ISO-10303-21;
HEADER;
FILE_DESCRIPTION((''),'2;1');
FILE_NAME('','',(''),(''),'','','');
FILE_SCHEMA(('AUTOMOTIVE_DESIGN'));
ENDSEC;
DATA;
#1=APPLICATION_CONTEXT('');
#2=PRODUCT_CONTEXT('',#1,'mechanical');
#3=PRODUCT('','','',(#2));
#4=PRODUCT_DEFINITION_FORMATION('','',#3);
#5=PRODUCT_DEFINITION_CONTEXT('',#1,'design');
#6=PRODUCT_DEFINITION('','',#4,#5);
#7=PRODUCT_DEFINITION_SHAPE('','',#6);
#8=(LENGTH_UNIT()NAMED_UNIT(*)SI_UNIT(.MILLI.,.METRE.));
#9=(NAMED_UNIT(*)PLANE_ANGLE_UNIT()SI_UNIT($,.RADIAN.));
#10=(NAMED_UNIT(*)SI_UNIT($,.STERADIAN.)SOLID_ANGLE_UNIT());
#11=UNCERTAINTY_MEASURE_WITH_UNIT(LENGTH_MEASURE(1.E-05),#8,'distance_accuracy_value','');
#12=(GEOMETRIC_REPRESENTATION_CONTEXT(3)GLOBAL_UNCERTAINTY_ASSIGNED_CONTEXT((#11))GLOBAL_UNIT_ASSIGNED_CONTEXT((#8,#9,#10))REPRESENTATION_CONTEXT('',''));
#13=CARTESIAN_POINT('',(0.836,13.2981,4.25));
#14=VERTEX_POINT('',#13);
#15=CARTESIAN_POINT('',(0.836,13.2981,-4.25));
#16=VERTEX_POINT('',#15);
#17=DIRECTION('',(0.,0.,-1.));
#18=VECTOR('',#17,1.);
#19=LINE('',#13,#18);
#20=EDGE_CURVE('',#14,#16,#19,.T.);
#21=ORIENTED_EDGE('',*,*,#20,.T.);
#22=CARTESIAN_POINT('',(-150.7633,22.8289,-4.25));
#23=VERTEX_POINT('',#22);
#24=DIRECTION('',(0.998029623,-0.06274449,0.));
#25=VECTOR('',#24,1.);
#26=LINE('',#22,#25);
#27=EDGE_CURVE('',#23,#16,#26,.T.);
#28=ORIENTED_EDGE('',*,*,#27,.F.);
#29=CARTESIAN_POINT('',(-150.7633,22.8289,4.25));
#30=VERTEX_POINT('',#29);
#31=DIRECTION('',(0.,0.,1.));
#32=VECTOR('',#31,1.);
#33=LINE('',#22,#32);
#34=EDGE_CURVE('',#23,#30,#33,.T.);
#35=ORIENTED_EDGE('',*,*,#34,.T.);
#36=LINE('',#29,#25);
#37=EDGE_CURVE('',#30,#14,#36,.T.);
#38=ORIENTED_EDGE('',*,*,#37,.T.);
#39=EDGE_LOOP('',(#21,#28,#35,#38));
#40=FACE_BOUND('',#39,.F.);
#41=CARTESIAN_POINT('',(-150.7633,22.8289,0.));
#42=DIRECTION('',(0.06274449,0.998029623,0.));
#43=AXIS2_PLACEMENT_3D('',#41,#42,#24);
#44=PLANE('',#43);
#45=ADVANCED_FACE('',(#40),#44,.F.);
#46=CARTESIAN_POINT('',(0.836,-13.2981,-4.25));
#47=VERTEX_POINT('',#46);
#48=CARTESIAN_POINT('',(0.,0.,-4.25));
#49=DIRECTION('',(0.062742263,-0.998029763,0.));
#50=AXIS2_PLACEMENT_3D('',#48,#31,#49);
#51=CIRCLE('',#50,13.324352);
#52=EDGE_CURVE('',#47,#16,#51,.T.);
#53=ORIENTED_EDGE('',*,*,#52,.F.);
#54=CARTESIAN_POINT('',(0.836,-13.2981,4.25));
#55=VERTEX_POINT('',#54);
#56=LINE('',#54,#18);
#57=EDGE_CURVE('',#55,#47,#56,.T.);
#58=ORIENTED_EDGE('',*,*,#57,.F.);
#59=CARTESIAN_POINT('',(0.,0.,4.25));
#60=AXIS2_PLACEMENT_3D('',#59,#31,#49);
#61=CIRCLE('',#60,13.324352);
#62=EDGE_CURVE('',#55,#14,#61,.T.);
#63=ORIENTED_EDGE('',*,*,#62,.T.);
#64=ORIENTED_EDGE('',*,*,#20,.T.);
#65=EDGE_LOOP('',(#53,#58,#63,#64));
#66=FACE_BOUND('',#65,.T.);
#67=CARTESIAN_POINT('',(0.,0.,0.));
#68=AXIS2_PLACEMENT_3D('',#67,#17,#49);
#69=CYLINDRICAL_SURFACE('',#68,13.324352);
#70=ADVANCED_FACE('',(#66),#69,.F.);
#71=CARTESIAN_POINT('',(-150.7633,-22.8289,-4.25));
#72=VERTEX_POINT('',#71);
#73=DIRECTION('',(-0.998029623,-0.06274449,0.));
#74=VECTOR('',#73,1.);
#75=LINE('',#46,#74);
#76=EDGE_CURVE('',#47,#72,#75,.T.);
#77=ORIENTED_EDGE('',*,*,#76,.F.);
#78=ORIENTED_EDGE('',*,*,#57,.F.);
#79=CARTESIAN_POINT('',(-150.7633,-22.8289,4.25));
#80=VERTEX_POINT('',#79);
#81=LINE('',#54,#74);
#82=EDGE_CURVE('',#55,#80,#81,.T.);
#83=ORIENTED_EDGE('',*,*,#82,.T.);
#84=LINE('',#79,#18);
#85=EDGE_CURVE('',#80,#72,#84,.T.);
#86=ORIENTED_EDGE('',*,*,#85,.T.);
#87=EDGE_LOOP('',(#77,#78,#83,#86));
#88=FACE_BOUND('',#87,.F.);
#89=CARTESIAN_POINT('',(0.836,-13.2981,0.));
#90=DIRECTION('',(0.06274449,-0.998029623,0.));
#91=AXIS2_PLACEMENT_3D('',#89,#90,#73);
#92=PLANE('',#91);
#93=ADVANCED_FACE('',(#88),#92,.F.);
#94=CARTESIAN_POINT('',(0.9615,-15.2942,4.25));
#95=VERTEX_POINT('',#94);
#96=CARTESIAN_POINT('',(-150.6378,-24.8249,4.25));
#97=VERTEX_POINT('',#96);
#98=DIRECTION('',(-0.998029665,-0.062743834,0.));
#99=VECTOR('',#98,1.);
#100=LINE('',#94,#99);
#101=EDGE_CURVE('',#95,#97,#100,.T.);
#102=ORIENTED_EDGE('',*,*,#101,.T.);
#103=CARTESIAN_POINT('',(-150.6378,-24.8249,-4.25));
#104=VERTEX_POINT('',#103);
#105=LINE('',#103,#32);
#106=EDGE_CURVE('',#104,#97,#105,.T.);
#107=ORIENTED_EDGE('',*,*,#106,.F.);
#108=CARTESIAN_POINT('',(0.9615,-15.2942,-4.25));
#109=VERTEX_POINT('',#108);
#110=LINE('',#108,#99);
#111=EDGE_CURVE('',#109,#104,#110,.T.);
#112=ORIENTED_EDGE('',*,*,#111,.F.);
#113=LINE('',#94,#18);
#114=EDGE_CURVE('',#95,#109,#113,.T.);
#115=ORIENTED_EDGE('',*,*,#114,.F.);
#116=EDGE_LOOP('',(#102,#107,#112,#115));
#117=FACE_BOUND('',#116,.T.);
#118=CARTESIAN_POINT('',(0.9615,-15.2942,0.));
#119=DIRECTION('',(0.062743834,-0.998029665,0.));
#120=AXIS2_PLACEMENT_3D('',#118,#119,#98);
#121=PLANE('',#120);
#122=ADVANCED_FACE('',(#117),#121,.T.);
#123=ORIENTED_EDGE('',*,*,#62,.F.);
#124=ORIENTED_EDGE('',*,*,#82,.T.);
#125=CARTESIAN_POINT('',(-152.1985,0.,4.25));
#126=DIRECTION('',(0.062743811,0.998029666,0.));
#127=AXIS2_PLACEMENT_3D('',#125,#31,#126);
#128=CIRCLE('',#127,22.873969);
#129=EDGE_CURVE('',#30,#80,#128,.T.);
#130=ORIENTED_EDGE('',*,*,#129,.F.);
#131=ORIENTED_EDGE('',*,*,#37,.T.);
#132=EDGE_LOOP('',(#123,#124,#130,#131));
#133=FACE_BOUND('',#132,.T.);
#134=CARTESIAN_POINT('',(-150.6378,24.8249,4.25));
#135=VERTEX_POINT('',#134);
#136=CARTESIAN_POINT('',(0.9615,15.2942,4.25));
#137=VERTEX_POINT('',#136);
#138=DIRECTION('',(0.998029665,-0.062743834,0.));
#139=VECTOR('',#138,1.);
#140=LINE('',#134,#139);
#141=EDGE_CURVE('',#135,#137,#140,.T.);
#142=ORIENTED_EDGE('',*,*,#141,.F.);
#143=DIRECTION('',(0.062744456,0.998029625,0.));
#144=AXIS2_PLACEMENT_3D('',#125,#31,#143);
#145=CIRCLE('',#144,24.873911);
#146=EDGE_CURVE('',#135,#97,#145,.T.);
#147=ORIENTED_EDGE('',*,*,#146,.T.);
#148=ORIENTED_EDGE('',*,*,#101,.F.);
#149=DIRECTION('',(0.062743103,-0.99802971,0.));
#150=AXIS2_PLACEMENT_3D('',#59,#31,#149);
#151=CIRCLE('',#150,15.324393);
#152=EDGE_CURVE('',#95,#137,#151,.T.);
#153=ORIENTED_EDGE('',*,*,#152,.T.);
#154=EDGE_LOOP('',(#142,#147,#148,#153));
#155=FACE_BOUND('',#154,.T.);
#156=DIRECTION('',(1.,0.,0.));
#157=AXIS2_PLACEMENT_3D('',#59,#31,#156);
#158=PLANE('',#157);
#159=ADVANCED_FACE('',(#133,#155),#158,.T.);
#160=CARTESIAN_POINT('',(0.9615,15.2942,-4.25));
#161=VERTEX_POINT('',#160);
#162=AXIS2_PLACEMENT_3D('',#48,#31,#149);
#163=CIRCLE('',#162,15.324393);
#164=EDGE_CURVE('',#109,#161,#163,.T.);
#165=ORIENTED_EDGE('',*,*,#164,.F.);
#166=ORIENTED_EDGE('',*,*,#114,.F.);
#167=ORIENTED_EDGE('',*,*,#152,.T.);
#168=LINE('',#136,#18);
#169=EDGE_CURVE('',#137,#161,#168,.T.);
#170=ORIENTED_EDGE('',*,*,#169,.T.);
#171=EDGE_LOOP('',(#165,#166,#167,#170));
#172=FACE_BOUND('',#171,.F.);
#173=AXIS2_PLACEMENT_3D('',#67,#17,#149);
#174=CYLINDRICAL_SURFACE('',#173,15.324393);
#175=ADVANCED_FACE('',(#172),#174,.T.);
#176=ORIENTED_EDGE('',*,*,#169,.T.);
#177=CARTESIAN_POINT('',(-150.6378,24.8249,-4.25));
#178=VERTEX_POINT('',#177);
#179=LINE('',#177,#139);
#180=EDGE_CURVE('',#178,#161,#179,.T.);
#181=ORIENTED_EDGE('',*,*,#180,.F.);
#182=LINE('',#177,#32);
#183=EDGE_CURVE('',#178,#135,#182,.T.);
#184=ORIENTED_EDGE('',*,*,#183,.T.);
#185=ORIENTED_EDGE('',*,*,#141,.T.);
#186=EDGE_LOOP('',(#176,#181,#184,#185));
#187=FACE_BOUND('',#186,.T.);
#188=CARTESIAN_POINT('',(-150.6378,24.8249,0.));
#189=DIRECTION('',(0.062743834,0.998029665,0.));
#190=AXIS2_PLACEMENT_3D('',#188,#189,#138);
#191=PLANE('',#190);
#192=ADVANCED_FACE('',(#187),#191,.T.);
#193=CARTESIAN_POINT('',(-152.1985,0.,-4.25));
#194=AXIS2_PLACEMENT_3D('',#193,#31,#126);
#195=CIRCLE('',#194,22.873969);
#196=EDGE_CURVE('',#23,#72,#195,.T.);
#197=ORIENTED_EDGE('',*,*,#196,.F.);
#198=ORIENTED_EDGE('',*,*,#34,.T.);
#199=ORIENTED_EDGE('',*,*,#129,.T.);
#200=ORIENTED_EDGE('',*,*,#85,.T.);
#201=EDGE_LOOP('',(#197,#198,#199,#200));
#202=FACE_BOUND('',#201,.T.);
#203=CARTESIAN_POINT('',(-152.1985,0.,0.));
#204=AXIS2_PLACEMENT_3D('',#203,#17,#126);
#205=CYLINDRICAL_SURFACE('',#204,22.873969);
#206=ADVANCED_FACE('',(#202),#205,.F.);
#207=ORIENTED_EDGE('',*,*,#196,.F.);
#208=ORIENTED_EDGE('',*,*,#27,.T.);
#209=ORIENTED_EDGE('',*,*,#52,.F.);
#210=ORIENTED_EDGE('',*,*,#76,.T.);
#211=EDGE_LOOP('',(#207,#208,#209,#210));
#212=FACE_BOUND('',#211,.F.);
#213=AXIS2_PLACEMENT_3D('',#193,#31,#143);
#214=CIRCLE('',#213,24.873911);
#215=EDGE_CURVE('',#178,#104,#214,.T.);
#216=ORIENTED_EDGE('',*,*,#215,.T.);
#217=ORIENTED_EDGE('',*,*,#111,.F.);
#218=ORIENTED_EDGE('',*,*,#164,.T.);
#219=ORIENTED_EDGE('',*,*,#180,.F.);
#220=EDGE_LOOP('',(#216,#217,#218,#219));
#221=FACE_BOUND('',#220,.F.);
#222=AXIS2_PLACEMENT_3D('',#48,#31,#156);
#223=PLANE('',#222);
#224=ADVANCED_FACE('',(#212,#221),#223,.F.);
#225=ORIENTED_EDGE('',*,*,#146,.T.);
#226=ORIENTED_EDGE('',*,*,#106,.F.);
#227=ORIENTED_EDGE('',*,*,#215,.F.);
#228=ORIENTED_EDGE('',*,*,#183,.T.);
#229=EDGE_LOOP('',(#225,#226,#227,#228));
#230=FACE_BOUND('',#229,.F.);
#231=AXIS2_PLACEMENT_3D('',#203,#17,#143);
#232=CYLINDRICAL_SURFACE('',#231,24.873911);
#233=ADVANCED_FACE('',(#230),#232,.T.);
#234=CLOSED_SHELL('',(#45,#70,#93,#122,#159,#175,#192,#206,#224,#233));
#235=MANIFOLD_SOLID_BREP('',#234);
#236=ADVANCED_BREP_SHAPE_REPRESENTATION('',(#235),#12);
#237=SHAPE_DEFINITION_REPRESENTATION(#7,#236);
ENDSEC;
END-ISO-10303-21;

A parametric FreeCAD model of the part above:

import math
import FreeCAD as App
import Part
import Sketcher

V = App.Vector
Q = App.Units.Quantity

doc = App.newDocument("Part")
params = doc.addObject("Spreadsheet::Sheet", "Params")
for row, (alias, value) in enumerate([
    ("pad1_length", "8.5 mm"),
], start=1):
    params.set(f"A{row}", alias)
    params.set(f"B{row}", "=" + value)
    params.setAlias(f"B{row}", alias)

body = doc.addObject("PartDesign::Body", "Body")

# Sketch on XY plane
sketch1 = doc.addObject("Sketcher::SketchObject", "Sketch")
body.addObject(sketch1)
sketch1.AttachmentSupport = (doc.XY_Plane, [""])
sketch1.MapMode = "FlatFace"
sketch1.addGeometry(Part.LineSegment(V(0.9615, 15.2942, 0), V(-150.6378, 24.8249, 0)), False)
sketch1.addGeometry(Part.ArcOfCircle(Part.Circle(V(-152.1985, 0, 0), V(0, 0, 1), 24.873911), math.radians(86.402644), math.radians(273.597356)), False)
sketch1.addGeometry(Part.LineSegment(V(-150.6378, -24.8249, 0), V(0.9615, -15.2942, 0)), False)
sketch1.addGeometry(Part.ArcOfCircle(Part.Circle(V(0, 0, 0), V(0, 0, 1), 15.324393), math.radians(-86.402722), math.radians(86.402722)), False)
sketch1.addGeometry(Part.ArcOfCircle(Part.Circle(V(-152.1985, 0, 0), V(0, 0, 1), 22.873969), math.radians(86.402682), math.radians(273.597318)), False)
sketch1.addGeometry(Part.LineSegment(V(-150.7633, 22.8289, 0), V(0.836, 13.2981, 0)), False)
sketch1.addGeometry(Part.ArcOfCircle(Part.Circle(V(0, 0, 0), V(0, 0, 1), 13.324352), math.radians(-86.40277), math.radians(86.40277)), False)
sketch1.addGeometry(Part.LineSegment(V(0.836, -13.2981, 0), V(-150.7633, -22.8289, 0)), False)
sketch1.addConstraint(Sketcher.Constraint("Tangent", 0, 2, 1, 1))
sketch1.addConstraint(Sketcher.Constraint("Tangent", 1, 2, 2, 1))
sketch1.addConstraint(Sketcher.Constraint("Tangent", 2, 2, 3, 1))
sketch1.addConstraint(Sketcher.Constraint("Tangent", 3, 2, 0, 1))
sketch1.addConstraint(Sketcher.Constraint("Tangent", 4, 1, 5, 1))
sketch1.addConstraint(Sketcher.Constraint("Tangent", 5, 2, 6, 2))
sketch1.addConstraint(Sketcher.Constraint("Tangent", 6, 1, 7, 1))
sketch1.addConstraint(Sketcher.Constraint("Tangent", 7, 2, 4, 2))
sketch1.addConstraint(Sketcher.Constraint("Coincident", 3, 3, -1, 1))
sketch1.addConstraint(Sketcher.Constraint("Coincident", 6, 3, -1, 1))
sketch1.addConstraint(Sketcher.Constraint("Coincident", 4, 3, 1, 3))
sketch1.addConstraint(Sketcher.Constraint("PointOnObject", 1, 3, -1))
sketch1.addConstraint(Sketcher.Constraint("Parallel", 0, 5))
sketch1.addConstraint(Sketcher.Constraint("Radius", 1, Q("24.874 mm")))
sketch1.addConstraint(Sketcher.Constraint("Radius", 4, Q("22.874 mm")))
sketch1.addConstraint(Sketcher.Constraint("Radius", 3, Q("15.3244 mm")))
sketch1.addConstraint(Sketcher.Constraint("DistanceX", 1, 3, 2, 2, Q("153.16 mm")))
pad1 = doc.addObject("PartDesign::Pad", "Pad")
body.addObject(pad1)
pad1.Profile = sketch1
pad1.setExpression("Length", "Params.pad1_length")
pad1.Midplane = True

doc.recompute()
